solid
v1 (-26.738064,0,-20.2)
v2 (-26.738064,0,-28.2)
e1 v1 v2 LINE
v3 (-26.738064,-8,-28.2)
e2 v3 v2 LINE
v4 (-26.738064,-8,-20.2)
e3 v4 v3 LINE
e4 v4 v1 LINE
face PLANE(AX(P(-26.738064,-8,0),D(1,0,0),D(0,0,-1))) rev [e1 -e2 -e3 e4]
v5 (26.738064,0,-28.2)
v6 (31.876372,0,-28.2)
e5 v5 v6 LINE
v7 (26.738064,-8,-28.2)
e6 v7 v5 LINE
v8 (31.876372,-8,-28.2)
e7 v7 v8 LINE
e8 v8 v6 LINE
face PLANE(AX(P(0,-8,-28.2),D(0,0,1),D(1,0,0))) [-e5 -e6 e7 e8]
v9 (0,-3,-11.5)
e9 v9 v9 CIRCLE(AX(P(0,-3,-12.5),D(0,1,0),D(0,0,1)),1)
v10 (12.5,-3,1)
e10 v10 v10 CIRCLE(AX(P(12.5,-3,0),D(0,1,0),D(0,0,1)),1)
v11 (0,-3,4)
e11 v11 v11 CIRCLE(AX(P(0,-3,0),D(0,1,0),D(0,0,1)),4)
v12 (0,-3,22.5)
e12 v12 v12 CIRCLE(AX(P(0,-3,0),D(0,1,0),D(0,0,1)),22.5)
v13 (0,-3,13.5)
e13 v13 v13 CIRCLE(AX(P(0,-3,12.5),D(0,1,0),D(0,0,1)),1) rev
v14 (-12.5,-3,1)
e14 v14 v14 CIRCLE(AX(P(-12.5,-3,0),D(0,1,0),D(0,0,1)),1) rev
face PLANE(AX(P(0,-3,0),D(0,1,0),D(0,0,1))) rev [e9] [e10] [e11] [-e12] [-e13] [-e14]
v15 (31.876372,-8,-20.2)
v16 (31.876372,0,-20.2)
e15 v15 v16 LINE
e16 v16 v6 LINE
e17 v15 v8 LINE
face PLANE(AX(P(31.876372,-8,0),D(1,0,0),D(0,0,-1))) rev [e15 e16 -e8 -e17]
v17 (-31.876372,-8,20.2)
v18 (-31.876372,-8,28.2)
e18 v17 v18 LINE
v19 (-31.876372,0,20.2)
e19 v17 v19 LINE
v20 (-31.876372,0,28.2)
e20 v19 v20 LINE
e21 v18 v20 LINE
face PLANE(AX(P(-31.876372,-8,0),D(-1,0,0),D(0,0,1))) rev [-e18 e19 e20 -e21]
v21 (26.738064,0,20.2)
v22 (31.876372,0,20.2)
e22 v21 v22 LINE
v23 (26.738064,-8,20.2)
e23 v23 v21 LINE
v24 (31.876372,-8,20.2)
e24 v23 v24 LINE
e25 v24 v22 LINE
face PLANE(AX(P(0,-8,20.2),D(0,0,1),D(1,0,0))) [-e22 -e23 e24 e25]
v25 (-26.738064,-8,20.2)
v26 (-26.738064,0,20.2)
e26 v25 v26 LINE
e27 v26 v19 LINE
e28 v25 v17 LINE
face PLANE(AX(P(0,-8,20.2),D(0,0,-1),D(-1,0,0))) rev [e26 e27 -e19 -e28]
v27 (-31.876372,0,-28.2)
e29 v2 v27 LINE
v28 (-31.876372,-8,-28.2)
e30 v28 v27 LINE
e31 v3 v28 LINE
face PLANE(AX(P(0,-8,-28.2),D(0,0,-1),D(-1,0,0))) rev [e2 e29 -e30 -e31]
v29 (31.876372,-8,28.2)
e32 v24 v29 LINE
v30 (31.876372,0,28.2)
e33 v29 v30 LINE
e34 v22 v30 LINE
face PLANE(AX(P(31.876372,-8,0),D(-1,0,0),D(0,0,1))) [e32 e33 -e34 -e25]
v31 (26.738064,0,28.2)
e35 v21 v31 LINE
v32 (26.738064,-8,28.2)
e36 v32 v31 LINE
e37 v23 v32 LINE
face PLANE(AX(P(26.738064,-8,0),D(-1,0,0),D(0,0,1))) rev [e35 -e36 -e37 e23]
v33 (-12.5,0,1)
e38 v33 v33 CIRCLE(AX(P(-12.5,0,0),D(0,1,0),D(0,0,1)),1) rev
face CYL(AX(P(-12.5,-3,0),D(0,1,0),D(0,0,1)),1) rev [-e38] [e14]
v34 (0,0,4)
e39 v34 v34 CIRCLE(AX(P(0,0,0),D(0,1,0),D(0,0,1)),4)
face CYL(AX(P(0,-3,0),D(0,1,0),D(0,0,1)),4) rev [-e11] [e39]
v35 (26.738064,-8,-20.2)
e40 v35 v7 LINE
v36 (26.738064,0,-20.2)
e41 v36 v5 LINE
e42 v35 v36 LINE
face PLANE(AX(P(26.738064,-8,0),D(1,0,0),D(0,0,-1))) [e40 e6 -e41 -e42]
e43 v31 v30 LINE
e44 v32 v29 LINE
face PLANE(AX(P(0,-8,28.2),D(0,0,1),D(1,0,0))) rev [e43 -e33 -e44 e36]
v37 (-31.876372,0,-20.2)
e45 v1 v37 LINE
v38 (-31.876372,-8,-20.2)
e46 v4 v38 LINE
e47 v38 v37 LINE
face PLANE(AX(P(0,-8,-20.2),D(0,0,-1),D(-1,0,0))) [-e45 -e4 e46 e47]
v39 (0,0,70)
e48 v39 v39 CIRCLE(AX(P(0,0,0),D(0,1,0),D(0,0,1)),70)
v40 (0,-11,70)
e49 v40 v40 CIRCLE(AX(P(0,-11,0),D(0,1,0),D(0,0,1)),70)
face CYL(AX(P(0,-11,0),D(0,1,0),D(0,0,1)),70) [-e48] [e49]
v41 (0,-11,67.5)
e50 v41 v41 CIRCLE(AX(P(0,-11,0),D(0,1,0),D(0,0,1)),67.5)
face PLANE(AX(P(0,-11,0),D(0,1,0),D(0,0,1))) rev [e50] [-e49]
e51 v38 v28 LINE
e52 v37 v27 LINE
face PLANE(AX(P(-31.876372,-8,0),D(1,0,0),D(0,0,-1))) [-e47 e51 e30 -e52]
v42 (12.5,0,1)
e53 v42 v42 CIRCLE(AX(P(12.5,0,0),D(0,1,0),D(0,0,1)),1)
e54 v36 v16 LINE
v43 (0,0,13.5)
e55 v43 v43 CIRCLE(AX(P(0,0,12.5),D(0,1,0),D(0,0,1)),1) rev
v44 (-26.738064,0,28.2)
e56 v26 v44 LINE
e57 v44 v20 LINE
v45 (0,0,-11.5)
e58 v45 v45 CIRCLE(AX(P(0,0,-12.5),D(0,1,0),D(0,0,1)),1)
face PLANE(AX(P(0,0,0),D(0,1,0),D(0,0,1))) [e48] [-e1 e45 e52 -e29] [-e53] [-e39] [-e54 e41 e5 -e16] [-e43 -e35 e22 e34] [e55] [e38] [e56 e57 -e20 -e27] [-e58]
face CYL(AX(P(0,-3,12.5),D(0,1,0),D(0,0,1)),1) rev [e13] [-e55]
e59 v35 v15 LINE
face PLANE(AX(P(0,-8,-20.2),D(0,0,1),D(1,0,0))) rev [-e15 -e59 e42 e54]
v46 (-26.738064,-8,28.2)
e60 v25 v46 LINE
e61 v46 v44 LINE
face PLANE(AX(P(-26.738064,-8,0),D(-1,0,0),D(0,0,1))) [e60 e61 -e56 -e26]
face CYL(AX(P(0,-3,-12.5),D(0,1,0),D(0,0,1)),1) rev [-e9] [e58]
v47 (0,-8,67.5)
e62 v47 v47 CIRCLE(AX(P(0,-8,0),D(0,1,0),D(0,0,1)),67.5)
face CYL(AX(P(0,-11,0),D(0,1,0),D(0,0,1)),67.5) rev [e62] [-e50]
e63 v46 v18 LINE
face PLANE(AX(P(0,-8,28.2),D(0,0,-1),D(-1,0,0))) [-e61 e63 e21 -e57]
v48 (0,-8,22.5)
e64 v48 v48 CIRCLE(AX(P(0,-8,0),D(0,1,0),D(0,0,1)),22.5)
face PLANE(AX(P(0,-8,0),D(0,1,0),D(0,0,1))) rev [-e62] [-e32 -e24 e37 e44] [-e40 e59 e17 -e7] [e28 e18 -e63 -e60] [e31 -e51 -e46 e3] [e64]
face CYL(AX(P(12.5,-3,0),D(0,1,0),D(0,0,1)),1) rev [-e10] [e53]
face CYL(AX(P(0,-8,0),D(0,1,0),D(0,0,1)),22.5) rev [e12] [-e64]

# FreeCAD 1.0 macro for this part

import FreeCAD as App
import Part
import Sketcher
Q = App.Units.Quantity


def add_polygon(sketch, points):
    """Adds a closed chain of lines whose ends are joined by coincident constraints."""
    first, n = sketch.GeometryCount, len(points)
    for a, b in zip(points, points[1:] + points[:1]):
        sketch.addGeometry(Part.LineSegment(App.Vector(*a, 0), App.Vector(*b, 0)), False)
    for i in range(n):
        sketch.addConstraint(Sketcher.Constraint("Coincident", first + i, 2, first + (i + 1) % n, 1))

doc = App.newDocument("Part")
body = doc.addObject("PartDesign::Body", "Body")

sketch1 = body.newObject("Sketcher::SketchObject", "Sketch")
sketch1.AttachmentSupport = (doc.getObject("XZ_Plane"), [""])
sketch1.MapMode = "FlatFace"
sketch1.addGeometry([
    Part.Circle(App.Vector(0, 0, 0), App.Vector(0, 0, 1), 22.5),
    Part.Circle(App.Vector(0, 12.5, 0), App.Vector(0, 0, 1), 1),
    Part.Circle(App.Vector(-12.5, 0, 0), App.Vector(0, 0, 1), 1),
    Part.Circle(App.Vector(0, 0, 0), App.Vector(0, 0, 1), 4),
    Part.Circle(App.Vector(12.5, 0, 0), App.Vector(0, 0, 1), 1),
    Part.Circle(App.Vector(0, -12.5, 0), App.Vector(0, 0, 1), 1),
], False)
sketch1.addConstraint([
    Sketcher.Constraint("Coincident", 0, 3, -1, 1),
    Sketcher.Constraint("Coincident", 3, 3, -1, 1),
    Sketcher.Constraint("Equal", 1, 2),
    Sketcher.Constraint("Equal", 2, 4),
    Sketcher.Constraint("Equal", 4, 5),
    Sketcher.Constraint("Symmetric", 2, 3, 4, 3, -1, 1),
    Sketcher.Constraint("Symmetric", 1, 3, 5, 3, -1, 1),
    Sketcher.Constraint("PointOnObject", 1, 3, -2),
    Sketcher.Constraint("PointOnObject", 2, 3, -1),
    Sketcher.Constraint("Diameter", 0, Q("45 mm")),
    Sketcher.Constraint("Diameter", 1, Q("2 mm")),
    Sketcher.Constraint("Diameter", 3, Q("8 mm")),
    Sketcher.Constraint("DistanceX", 2, 3, 4, 3, Q("25 mm")),
    Sketcher.Constraint("DistanceY", 5, 3, 1, 3, Q("25 mm")),
])
pad1 = body.newObject("PartDesign::Pad", "Pad")
pad1.Profile = sketch1
pad1.Length = 3

sketch2 = body.newObject("Sketcher::SketchObject", "Sketch001")
sketch2.AttachmentSupport = (doc.getObject("XZ_Plane"), [""])
sketch2.MapMode = "FlatFace"
sketch2.addGeometry(Part.Circle(App.Vector(0, 0, 0), App.Vector(0, 0, 1), 68), False)
add_polygon(sketch2, [(-27, 28), (-32, 28), (-32, 20), (-27, 20)])
add_polygon(sketch2, [(32, 28), (27, 28), (27, 20), (32, 20)])
sketch2.addGeometry(Part.Circle(App.Vector(0, 0, 0), App.Vector(0, 0, 1), 22), False)
add_polygon(sketch2, [(-27, -20), (-32, -20), (-32, -28), (-27, -28)])
add_polygon(sketch2, [(32, -20), (27, -20), (27, -28), (32, -28)])
sketch2.addConstraint([
    Sketcher.Constraint("Horizontal", 1),
    Sketcher.Constraint("Vertical", 2),
    Sketcher.Constraint("Horizontal", 3),
    Sketcher.Constraint("Vertical", 4),
    Sketcher.Constraint("Horizontal", 5),
    Sketcher.Constraint("Vertical", 6),
    Sketcher.Constraint("Horizontal", 7),
    Sketcher.Constraint("Vertical", 8),
    Sketcher.Constraint("Horizontal", 10),
    Sketcher.Constraint("Vertical", 11),
    Sketcher.Constraint("Horizontal", 12),
    Sketcher.Constraint("Vertical", 13),
    Sketcher.Constraint("Horizontal", 14),
    Sketcher.Constraint("Vertical", 15),
    Sketcher.Constraint("Horizontal", 16),
    Sketcher.Constraint("Vertical", 17),
    Sketcher.Constraint("Coincident", 0, 3, -1, 1),
    Sketcher.Constraint("Coincident", 9, 3, -1, 1),
    Sketcher.Constraint("Symmetric", 7, 2, 10, 2, -1, 1),
    Sketcher.Constraint("Symmetric", 5, 2, 12, 2, -1, 1),
    Sketcher.Constraint("Symmetric", 3, 2, 14, 2, -1, 1),
    Sketcher.Constraint("Symmetric", 1, 2, 16, 2, -1, 1),
    Sketcher.Constraint("Symmetric", 4, 2, 5, 2, -2),
    Sketcher.Constraint("Symmetric", 2, 2, 7, 2, -2),
    Sketcher.Constraint("Diameter", 0, Q("135 mm")),
    Sketcher.Constraint("Diameter", 9, Q("45 mm")),
    Sketcher.Constraint("DistanceY", 2, 2, 2, 1, Q("8 mm")),
    Sketcher.Constraint("DistanceY", -1, 1, 1, 2, Q("28.2 mm")),
    Sketcher.Constraint("DistanceX", 1, 2, 1, 1, Q("5.138307 mm")),
    Sketcher.Constraint("DistanceX", 1, 2, -1, 1, Q("31.876372 mm")),
])
pad2 = body.newObject("PartDesign::Pad", "Pad001")
pad2.Profile = sketch2
pad2.Length = 8

sketch3 = body.newObject("Sketcher::SketchObject", "Sketch002")
sketch3.AttachmentSupport = (doc.getObject("XZ_Plane"), [""])
sketch3.MapMode = "FlatFace"
sketch3.addGeometry([
    Part.Circle(App.Vector(0, 0, 0), App.Vector(0, 0, 1), 70),
    Part.Circle(App.Vector(0, 0, 0), App.Vector(0, 0, 1), 68),
], False)
sketch3.addConstraint([
    Sketcher.Constraint("Coincident", 0, 3, -1, 1),
    Sketcher.Constraint("Coincident", 1, 3, -1, 1),
    Sketcher.Constraint("Diameter", 0, Q("140 mm")),
    Sketcher.Constraint("Diameter", 1, Q("135 mm")),
])
pad3 = body.newObject("PartDesign::Pad", "Pad002")
pad3.Profile = sketch3
pad3.Length = 11

doc.recompute()
